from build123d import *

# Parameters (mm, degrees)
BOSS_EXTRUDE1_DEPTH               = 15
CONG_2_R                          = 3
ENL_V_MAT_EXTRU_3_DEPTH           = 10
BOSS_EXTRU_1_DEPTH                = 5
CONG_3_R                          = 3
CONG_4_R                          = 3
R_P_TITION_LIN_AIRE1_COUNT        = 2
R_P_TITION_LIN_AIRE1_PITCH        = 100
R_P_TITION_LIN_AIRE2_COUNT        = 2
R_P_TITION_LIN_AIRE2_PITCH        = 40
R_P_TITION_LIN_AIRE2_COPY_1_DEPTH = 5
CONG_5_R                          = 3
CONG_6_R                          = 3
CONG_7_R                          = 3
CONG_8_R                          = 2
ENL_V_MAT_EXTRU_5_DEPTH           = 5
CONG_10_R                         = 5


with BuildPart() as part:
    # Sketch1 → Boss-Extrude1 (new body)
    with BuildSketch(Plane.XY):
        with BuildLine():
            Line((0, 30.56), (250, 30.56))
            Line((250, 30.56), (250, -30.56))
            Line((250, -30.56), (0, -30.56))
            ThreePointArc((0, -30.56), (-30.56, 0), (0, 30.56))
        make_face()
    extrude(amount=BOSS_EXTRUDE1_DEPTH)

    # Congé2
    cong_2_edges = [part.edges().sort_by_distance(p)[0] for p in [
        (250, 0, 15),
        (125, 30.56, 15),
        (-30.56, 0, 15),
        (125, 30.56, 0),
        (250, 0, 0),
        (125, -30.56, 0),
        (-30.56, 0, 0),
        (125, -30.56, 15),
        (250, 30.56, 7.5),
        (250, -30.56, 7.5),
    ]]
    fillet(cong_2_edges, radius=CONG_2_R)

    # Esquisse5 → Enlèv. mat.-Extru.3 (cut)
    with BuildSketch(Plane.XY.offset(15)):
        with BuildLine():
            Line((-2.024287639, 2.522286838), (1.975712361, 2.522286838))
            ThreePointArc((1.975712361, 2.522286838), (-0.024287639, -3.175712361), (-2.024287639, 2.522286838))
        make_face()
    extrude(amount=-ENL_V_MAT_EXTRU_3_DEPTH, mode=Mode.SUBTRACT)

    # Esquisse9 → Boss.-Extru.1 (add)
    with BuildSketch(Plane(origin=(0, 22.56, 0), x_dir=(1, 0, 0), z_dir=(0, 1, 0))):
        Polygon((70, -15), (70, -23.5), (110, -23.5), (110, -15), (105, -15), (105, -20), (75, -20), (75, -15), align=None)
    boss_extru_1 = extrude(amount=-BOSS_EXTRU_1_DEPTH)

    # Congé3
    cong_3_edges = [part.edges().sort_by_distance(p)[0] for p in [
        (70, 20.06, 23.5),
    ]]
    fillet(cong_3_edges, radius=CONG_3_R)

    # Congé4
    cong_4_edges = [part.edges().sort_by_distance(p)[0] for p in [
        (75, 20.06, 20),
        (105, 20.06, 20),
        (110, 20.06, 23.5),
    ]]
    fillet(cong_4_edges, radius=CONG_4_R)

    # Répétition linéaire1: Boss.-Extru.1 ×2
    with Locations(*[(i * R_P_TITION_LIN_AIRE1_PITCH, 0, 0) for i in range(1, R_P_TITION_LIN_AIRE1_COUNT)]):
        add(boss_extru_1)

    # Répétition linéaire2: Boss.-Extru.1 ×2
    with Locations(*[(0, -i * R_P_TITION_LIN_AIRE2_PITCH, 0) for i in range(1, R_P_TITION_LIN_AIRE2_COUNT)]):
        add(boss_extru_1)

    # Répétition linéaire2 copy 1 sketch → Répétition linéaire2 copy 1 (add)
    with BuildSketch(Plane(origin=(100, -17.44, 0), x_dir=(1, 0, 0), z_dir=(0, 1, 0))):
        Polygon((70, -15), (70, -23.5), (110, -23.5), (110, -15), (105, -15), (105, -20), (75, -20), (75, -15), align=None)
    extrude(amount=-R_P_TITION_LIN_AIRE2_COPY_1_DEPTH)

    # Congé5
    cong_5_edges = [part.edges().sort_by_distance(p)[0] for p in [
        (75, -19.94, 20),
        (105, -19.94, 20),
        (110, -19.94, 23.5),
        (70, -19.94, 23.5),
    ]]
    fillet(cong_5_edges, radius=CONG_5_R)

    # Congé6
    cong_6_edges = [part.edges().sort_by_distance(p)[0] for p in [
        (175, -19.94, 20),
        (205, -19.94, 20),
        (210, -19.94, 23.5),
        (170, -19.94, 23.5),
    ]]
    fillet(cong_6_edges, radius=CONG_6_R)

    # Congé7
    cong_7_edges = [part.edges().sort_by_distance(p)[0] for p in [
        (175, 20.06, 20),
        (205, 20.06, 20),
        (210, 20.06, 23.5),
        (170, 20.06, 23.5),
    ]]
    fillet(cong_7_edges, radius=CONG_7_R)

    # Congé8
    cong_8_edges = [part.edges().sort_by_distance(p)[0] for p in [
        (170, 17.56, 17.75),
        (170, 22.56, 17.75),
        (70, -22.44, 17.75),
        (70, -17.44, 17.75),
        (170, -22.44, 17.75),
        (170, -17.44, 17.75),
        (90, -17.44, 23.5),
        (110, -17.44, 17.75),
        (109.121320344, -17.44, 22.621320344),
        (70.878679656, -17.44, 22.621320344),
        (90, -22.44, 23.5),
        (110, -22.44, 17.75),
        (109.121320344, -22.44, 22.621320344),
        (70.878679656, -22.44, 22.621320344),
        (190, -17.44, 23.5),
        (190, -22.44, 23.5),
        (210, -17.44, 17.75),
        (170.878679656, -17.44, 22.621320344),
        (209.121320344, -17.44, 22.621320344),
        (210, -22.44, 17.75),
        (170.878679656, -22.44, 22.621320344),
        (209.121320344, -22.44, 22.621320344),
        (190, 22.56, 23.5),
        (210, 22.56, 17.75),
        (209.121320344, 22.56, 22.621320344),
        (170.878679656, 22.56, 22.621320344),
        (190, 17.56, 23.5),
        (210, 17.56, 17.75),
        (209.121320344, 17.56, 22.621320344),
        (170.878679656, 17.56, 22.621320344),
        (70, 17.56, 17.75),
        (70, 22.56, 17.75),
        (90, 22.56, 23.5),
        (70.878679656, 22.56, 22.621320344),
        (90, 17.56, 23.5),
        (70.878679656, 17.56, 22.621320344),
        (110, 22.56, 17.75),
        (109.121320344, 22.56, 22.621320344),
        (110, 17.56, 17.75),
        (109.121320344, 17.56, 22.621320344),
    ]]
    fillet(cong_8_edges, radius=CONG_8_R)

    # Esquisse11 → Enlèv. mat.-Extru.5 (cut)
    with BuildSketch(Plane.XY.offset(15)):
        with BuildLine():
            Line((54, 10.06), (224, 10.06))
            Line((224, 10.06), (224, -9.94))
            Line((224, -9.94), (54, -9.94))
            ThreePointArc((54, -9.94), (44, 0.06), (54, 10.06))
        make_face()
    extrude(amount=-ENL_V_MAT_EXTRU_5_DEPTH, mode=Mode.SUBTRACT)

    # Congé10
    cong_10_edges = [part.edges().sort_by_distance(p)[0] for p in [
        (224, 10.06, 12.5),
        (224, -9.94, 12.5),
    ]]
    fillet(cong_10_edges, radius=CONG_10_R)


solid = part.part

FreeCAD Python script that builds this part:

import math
import FreeCAD as App
import Part
import Sketcher
from FreeCAD import Vector


def edges_at(feature, points):
    """Names of the edges that pass closest to the given points."""
    edges = feature.Shape.Edges
    near = lambda p: min(range(len(edges)), key=lambda i: edges[i].distToShape(Part.Vertex(*p))[0])
    return sorted({f"Edge{near(p) + 1}" for p in points})

doc = App.newDocument("Part")
body = doc.addObject("PartDesign::Body", "Body")

# Sketch on XY plane
sketch1 = doc.addObject("Sketcher::SketchObject", "Sketch")
body.addObject(sketch1)
sketch1.AttachmentSupport = (doc.XY_Plane, [""])
sketch1.MapMode = "FlatFace"
sketch1.addGeometry(Part.LineSegment(Vector(250, 31, 0), Vector(0, 31, 0)), False)
sketch1.addGeometry(Part.ArcOfCircle(Part.Circle(Vector(0, 0, 0), Vector(0, 0, 1), 31), math.radians(90), math.radians(270)), False)
sketch1.addGeometry(Part.LineSegment(Vector(0, -31, 0), Vector(250, -31, 0)), False)
sketch1.addGeometry(Part.LineSegment(Vector(250, -31, 0), Vector(250, 31, 0)), False)
sketch1.addConstraint(Sketcher.Constraint("Tangent", 0, 2, 1, 1))
sketch1.addConstraint(Sketcher.Constraint("Tangent", 1, 2, 2, 1))
sketch1.addConstraint(Sketcher.Constraint("Coincident", 2, 2, 3, 1))
sketch1.addConstraint(Sketcher.Constraint("Coincident", 3, 2, 0, 1))
sketch1.addConstraint(Sketcher.Constraint("Horizontal", 0))
sketch1.addConstraint(Sketcher.Constraint("Horizontal", 2))
sketch1.addConstraint(Sketcher.Constraint("Vertical", 3))
sketch1.addConstraint(Sketcher.Constraint("Coincident", 1, 3, -1, 1))
sketch1.addConstraint(Sketcher.Constraint("DistanceX", 0, 2, 0, 1, 250.0))
sketch1.addConstraint(Sketcher.Constraint("Radius", 1, 30.56))
pad1 = doc.addObject("PartDesign::Pad", "Pad")
body.addObject(pad1)
pad1.Profile = sketch1
pad1.Length = 15
doc.recompute()

fillet = doc.addObject("PartDesign::Fillet", "Fillet")
body.addObject(fillet)
fillet.Base = (pad1, ["Edge1"])
fillet.UseAllEdges = True
fillet.Radius = 3

# Sketch on XY plane
sketch2 = doc.addObject("Sketcher::SketchObject", "Sketch001")
body.addObject(sketch2)
sketch2.AttachmentSupport = (doc.XY_Plane, [""])
sketch2.MapMode = "FlatFace"
sketch2.AttachmentOffset = App.Placement(Vector(0, 0, 15), App.Rotation())
sketch2.addGeometry(Part.LineSegment(Vector(2, 2.5, 0), Vector(-2, 2.5, 0)), False)
sketch2.addGeometry(Part.ArcOfCircle(Part.Circle(Vector(0, 0, 0), Vector(0, 0, 1), 3.2), math.radians(129), math.radians(411)), False)
sketch2.addConstraint(Sketcher.Constraint("Coincident", 0, 1, 1, 2))
sketch2.addConstraint(Sketcher.Constraint("Coincident", 1, 1, 0, 2))
sketch2.addConstraint(Sketcher.Constraint("Horizontal", 0))
sketch2.addConstraint(Sketcher.Constraint("Radius", 1, 3.2))
sketch2.addConstraint(Sketcher.Constraint("DistanceX", 0, 2, 0, 1, 4.0))
sketch2.addConstraint(Sketcher.Constraint("DistanceX", 1, 3, -1, 1, 0.024288))
sketch2.addConstraint(Sketcher.Constraint("DistanceY", -1, 1, 1, 3, 0.024288))
pocket1 = doc.addObject("PartDesign::Pocket", "Pocket")
body.addObject(pocket1)
pocket1.Profile = sketch2
pocket1.Length = 10

# Sketch on XZ plane
sketch3 = doc.addObject("Sketcher::SketchObject", "Sketch002")
body.addObject(sketch3)
sketch3.AttachmentSupport = (doc.XZ_Plane, [""])
sketch3.MapMode = "FlatFace"
sketch3.AttachmentOffset = App.Placement(Vector(0, 0, -22.56), App.Rotation())
sketch3.addGeometry(Part.LineSegment(Vector(70, 15, 0), Vector(70, 24, 0)), False)
sketch3.addGeometry(Part.LineSegment(Vector(70, 24, 0), Vector(110, 24, 0)), False)
sketch3.addGeometry(Part.LineSegment(Vector(110, 24, 0), Vector(110, 15, 0)), False)
sketch3.addGeometry(Part.LineSegment(Vector(110, 15, 0), Vector(105, 15, 0)), False)
sketch3.addGeometry(Part.LineSegment(Vector(105, 15, 0), Vector(105, 20, 0)), False)
sketch3.addGeometry(Part.LineSegment(Vector(105, 20, 0), Vector(75, 20, 0)), False)
sketch3.addGeometry(Part.LineSegment(Vector(75, 20, 0), Vector(75, 15, 0)), False)
sketch3.addGeometry(Part.LineSegment(Vector(75, 15, 0), Vector(70, 15, 0)), False)
sketch3.addConstraint(Sketcher.Constraint("Coincident", 0, 2, 1, 1))
sketch3.addConstraint(Sketcher.Constraint("Coincident", 1, 2, 2, 1))
sketch3.addConstraint(Sketcher.Constraint("Coincident", 2, 2, 3, 1))
sketch3.addConstraint(Sketcher.Constraint("Coincident", 3, 2, 4, 1))
sketch3.addConstraint(Sketcher.Constraint("Coincident", 4, 2, 5, 1))
sketch3.addConstraint(Sketcher.Constraint("Coincident", 5, 2, 6, 1))
sketch3.addConstraint(Sketcher.Constraint("Coincident", 6, 2, 7, 1))
sketch3.addConstraint(Sketcher.Constraint("Coincident", 7, 2, 0, 1))
sketch3.addConstraint(Sketcher.Constraint("Vertical", 0))
sketch3.addConstraint(Sketcher.Constraint("Horizontal", 1))
sketch3.addConstraint(Sketcher.Constraint("Vertical", 2))
sketch3.addConstraint(Sketcher.Constraint("Horizontal", 3))
sketch3.addConstraint(Sketcher.Constraint("Vertical", 4))
sketch3.addConstraint(Sketcher.Constraint("Horizontal", 5))
sketch3.addConstraint(Sketcher.Constraint("Vertical", 6))
sketch3.addConstraint(Sketcher.Constraint("Horizontal", 7))
sketch3.addConstraint(Sketcher.Constraint("Horizontal", 3, 2, 6, 2))
sketch3.addConstraint(Sketcher.Constraint("Equal", 3, 7))
sketch3.addConstraint(Sketcher.Constraint("Equal", 7, 4))
sketch3.addConstraint(Sketcher.Constraint("DistanceX", 1, 1, 1, 2, 40.0))
sketch3.addConstraint(Sketcher.Constraint("DistanceX", 3, 2, 3, 1, 5.0))
sketch3.addConstraint(Sketcher.Constraint("DistanceY", 0, 1, 0, 2, 8.5))
sketch3.addConstraint(Sketcher.Constraint("DistanceX", -1, 1, 0, 2, 70.0))
sketch3.addConstraint(Sketcher.Constraint("DistanceY", -1, 1, 2, 2, 15.0))
pad2 = doc.addObject("PartDesign::Pad", "Pad001")
body.addObject(pad2)
pad2.Profile = sketch3
pad2.Length = 5
doc.recompute()

fillet2 = doc.addObject("PartDesign::Fillet", "Fillet001")
body.addObject(fillet2)
fillet2.Base = (pad2, edges_at(pad2, [(70, 20.06, 23.5)]))
fillet2.Radius = 3
doc.recompute()

fillet3 = doc.addObject("PartDesign::Fillet", "Fillet002")
body.addObject(fillet3)
fillet3.Base = (fillet2, edges_at(fillet2, [(75, 20.06, 20), (105, 20.06, 20), (110, 20.06, 23.5)]))
fillet3.Radius = 3
doc.recompute()

linearpattern = doc.addObject("PartDesign::LinearPattern", "LinearPattern")
body.addObject(linearpattern)
linearpattern.Originals = [pad2]
linearpattern.Direction = (doc.X_Axis, [""])
linearpattern.Mode = "offset"
linearpattern.Offset = 100
linearpattern.Occurrences = 2
body.Tip = linearpattern
doc.recompute()

linearpattern2 = doc.addObject("PartDesign::LinearPattern", "LinearPattern001")
body.addObject(linearpattern2)
linearpattern2.Originals = [pad2]
linearpattern2.Direction = (doc.Y_Axis, [""])
linearpattern2.Mode = "offset"
linearpattern2.Offset = 40
linearpattern2.Occurrences = 2
linearpattern2.Reversed = True
body.Tip = linearpattern2

# Sketch on XZ plane
sketch4 = doc.addObject("Sketcher::SketchObject", "Sketch003")
body.addObject(sketch4)
sketch4.AttachmentSupport = (doc.XZ_Plane, [""])
sketch4.MapMode = "FlatFace"
sketch4.AttachmentOffset = App.Placement(Vector(0, 0, 17.44), App.Rotation())
sketch4.addGeometry(Part.LineSegment(Vector(170, 15, 0), Vector(170, 24, 0)), False)
sketch4.addGeometry(Part.LineSegment(Vector(170, 24, 0), Vector(210, 24, 0)), False)
sketch4.addGeometry(Part.LineSegment(Vector(210, 24, 0), Vector(210, 15, 0)), False)
sketch4.addGeometry(Part.LineSegment(Vector(210, 15, 0), Vector(205, 15, 0)), False)
sketch4.addGeometry(Part.LineSegment(Vector(205, 15, 0), Vector(205, 20, 0)), False)
sketch4.addGeometry(Part.LineSegment(Vector(205, 20, 0), Vector(175, 20, 0)), False)
sketch4.addGeometry(Part.LineSegment(Vector(175, 20, 0), Vector(175, 15, 0)), False)
sketch4.addGeometry(Part.LineSegment(Vector(175, 15, 0), Vector(170, 15, 0)), False)
sketch4.addConstraint(Sketcher.Constraint("Coincident", 0, 2, 1, 1))
sketch4.addConstraint(Sketcher.Constraint("Coincident", 1, 2, 2, 1))
sketch4.addConstraint(Sketcher.Constraint("Coincident", 2, 2, 3, 1))
sketch4.addConstraint(Sketcher.Constraint("Coincident", 3, 2, 4, 1))
sketch4.addConstraint(Sketcher.Constraint("Coincident", 4, 2, 5, 1))
sketch4.addConstraint(Sketcher.Constraint("Coincident", 5, 2, 6, 1))
sketch4.addConstraint(Sketcher.Constraint("Coincident", 6, 2, 7, 1))
sketch4.addConstraint(Sketcher.Constraint("Coincident", 7, 2, 0, 1))
sketch4.addConstraint(Sketcher.Constraint("Vertical", 0))
sketch4.addConstraint(Sketcher.Constraint("Horizontal", 1))
sketch4.addConstraint(Sketcher.Constraint("Vertical", 2))
sketch4.addConstraint(Sketcher.Constraint("Horizontal", 3))
sketch4.addConstraint(Sketcher.Constraint("Vertical", 4))
sketch4.addConstraint(Sketcher.Constraint("Horizontal", 5))
sketch4.addConstraint(Sketcher.Constraint("Vertical", 6))
sketch4.addConstraint(Sketcher.Constraint("Horizontal", 7))
sketch4.addConstraint(Sketcher.Constraint("Horizontal", 3, 2, 6, 2))
sketch4.addConstraint(Sketcher.Constraint("Equal", 3, 7))
sketch4.addConstraint(Sketcher.Constraint("Equal", 7, 4))
sketch4.addConstraint(Sketcher.Constraint("DistanceX", 1, 1, 1, 2, 40.0))
sketch4.addConstraint(Sketcher.Constraint("DistanceX", 3, 2, 3, 1, 5.0))
sketch4.addConstraint(Sketcher.Constraint("DistanceY", 0, 1, 0, 2, 8.5))
sketch4.addConstraint(Sketcher.Constraint("DistanceX", -1, 1, 0, 2, 170.0))
sketch4.addConstraint(Sketcher.Constraint("DistanceY", -1, 1, 2, 2, 15.0))
pad3 = doc.addObject("PartDesign::Pad", "Pad002")
body.addObject(pad3)
pad3.Profile = sketch4
pad3.Length = 5
doc.recompute()

fillet4 = doc.addObject("PartDesign::Fillet", "Fillet003")
body.addObject(fillet4)
fillet4.Base = (pad3, edges_at(pad3, [
    (75, -19.94, 20),
    (105, -19.94, 20),
    (110, -19.94, 23.5),
    (70, -19.94, 23.5),
]))
fillet4.Radius = 3
doc.recompute()

fillet5 = doc.addObject("PartDesign::Fillet", "Fillet004")
body.addObject(fillet5)
fillet5.Base = (fillet4, edges_at(fillet4, [
    (175, -19.94, 20),
    (205, -19.94, 20),
    (210, -19.94, 23.5),
    (170, -19.94, 23.5),
]))
fillet5.Radius = 3
doc.recompute()

fillet6 = doc.addObject("PartDesign::Fillet", "Fillet005")
body.addObject(fillet6)
fillet6.Base = (fillet5, edges_at(fillet5, [
    (175, 20.06, 20),
    (205, 20.06, 20),
    (210, 20.06, 23.5),
    (170, 20.06, 23.5),
]))
fillet6.Radius = 3
doc.recompute()

fillet7 = doc.addObject("PartDesign::Fillet", "Fillet006")
body.addObject(fillet7)
fillet7.Base = (fillet6, edges_at(fillet6, [
    (170, 17.56, 17.75),
    (170, 22.56, 17.75),
    (70, -22.44, 17.75),
    (70, -17.44, 17.75),
    (170, -22.44, 17.75),
    (170, -17.44, 17.75),
    (90, -17.44, 23.5),
    (110, -17.44, 17.75),
    (109.121, -17.44, 22.621),
    (70.879, -17.44, 22.621),
    (90, -22.44, 23.5),
    (110, -22.44, 17.75),
    (109.121, -22.44, 22.621),
    (70.879, -22.44, 22.621),
    (190, -17.44, 23.5),
    (190, -22.44, 23.5),
    (210, -17.44, 17.75),
    (170.879, -17.44, 22.621),
    (209.121, -17.44, 22.621),
    (210, -22.44, 17.75),
    (170.879, -22.44, 22.621),
    (209.121, -22.44, 22.621),
    (190, 22.56, 23.5),
    (210, 22.56, 17.75),
    (209.121, 22.56, 22.621),
    (170.879, 22.56, 22.621),
    (190, 17.56, 23.5),
    (210, 17.56, 17.75),
    (209.121, 17.56, 22.621),
    (170.879, 17.56, 22.621),
    (70, 17.56, 17.75),
    (70, 22.56, 17.75),
    (90, 22.56, 23.5),
    (70.879, 22.56, 22.621),
    (90, 17.56, 23.5),
    (70.879, 17.56, 22.621),
    (110, 22.56, 17.75),
    (109.121, 22.56, 22.621),
    (110, 17.56, 17.75),
    (109.121, 17.56, 22.621),
]))
fillet7.Radius = 2

# Sketch on XY plane
sketch5 = doc.addObject("Sketcher::SketchObject", "Sketch004")
body.addObject(sketch5)
sketch5.AttachmentSupport = (doc.XY_Plane, [""])
sketch5.MapMode = "FlatFace"
sketch5.AttachmentOffset = App.Placement(Vector(0, 0, 15), App.Rotation())
sketch5.addGeometry(Part.LineSegment(Vector(224, 10, 0), Vector(54, 10, 0)), False)
sketch5.addGeometry(Part.ArcOfCircle(Part.Circle(Vector(54, 0, 0), Vector(0, 0, 1), 10), math.radians(90), math.radians(270)), False)
sketch5.addGeometry(Part.LineSegment(Vector(54, -10, 0), Vector(224, -10, 0)), False)
sketch5.addGeometry(Part.LineSegment(Vector(224, -10, 0), Vector(224, 10, 0)), False)
sketch5.addConstraint(Sketcher.Constraint("Tangent", 0, 2, 1, 1))
sketch5.addConstraint(Sketcher.Constraint("Tangent", 1, 2, 2, 1))
sketch5.addConstraint(Sketcher.Constraint("Coincident", 2, 2, 3, 1))
sketch5.addConstraint(Sketcher.Constraint("Coincident", 3, 2, 0, 1))
sketch5.addConstraint(Sketcher.Constraint("Horizontal", 0))
sketch5.addConstraint(Sketcher.Constraint("Horizontal", 2))
sketch5.addConstraint(Sketcher.Constraint("Vertical", 3))
sketch5.addConstraint(Sketcher.Constraint("Radius", 1, 10.0))
sketch5.addConstraint(Sketcher.Constraint("DistanceX", 0, 2, 0, 1, 170.0))
sketch5.addConstraint(Sketcher.Constraint("DistanceX", -1, 1, 1, 3, 54.0))
sketch5.addConstraint(Sketcher.Constraint("DistanceY", -1, 1, 1, 3, 0.06))
pocket2 = doc.addObject("PartDesign::Pocket", "Pocket001")
body.addObject(pocket2)
pocket2.Profile = sketch5
pocket2.Length = 5
doc.recompute()

fillet8 = doc.addObject("PartDesign::Fillet", "Fillet007")
body.addObject(fillet8)
fillet8.Base = (pocket2, edges_at(pocket2, [(224, 10.06, 12.5), (224, -9.94, 12.5)]))
fillet8.Radius = 5

doc.recompute()
